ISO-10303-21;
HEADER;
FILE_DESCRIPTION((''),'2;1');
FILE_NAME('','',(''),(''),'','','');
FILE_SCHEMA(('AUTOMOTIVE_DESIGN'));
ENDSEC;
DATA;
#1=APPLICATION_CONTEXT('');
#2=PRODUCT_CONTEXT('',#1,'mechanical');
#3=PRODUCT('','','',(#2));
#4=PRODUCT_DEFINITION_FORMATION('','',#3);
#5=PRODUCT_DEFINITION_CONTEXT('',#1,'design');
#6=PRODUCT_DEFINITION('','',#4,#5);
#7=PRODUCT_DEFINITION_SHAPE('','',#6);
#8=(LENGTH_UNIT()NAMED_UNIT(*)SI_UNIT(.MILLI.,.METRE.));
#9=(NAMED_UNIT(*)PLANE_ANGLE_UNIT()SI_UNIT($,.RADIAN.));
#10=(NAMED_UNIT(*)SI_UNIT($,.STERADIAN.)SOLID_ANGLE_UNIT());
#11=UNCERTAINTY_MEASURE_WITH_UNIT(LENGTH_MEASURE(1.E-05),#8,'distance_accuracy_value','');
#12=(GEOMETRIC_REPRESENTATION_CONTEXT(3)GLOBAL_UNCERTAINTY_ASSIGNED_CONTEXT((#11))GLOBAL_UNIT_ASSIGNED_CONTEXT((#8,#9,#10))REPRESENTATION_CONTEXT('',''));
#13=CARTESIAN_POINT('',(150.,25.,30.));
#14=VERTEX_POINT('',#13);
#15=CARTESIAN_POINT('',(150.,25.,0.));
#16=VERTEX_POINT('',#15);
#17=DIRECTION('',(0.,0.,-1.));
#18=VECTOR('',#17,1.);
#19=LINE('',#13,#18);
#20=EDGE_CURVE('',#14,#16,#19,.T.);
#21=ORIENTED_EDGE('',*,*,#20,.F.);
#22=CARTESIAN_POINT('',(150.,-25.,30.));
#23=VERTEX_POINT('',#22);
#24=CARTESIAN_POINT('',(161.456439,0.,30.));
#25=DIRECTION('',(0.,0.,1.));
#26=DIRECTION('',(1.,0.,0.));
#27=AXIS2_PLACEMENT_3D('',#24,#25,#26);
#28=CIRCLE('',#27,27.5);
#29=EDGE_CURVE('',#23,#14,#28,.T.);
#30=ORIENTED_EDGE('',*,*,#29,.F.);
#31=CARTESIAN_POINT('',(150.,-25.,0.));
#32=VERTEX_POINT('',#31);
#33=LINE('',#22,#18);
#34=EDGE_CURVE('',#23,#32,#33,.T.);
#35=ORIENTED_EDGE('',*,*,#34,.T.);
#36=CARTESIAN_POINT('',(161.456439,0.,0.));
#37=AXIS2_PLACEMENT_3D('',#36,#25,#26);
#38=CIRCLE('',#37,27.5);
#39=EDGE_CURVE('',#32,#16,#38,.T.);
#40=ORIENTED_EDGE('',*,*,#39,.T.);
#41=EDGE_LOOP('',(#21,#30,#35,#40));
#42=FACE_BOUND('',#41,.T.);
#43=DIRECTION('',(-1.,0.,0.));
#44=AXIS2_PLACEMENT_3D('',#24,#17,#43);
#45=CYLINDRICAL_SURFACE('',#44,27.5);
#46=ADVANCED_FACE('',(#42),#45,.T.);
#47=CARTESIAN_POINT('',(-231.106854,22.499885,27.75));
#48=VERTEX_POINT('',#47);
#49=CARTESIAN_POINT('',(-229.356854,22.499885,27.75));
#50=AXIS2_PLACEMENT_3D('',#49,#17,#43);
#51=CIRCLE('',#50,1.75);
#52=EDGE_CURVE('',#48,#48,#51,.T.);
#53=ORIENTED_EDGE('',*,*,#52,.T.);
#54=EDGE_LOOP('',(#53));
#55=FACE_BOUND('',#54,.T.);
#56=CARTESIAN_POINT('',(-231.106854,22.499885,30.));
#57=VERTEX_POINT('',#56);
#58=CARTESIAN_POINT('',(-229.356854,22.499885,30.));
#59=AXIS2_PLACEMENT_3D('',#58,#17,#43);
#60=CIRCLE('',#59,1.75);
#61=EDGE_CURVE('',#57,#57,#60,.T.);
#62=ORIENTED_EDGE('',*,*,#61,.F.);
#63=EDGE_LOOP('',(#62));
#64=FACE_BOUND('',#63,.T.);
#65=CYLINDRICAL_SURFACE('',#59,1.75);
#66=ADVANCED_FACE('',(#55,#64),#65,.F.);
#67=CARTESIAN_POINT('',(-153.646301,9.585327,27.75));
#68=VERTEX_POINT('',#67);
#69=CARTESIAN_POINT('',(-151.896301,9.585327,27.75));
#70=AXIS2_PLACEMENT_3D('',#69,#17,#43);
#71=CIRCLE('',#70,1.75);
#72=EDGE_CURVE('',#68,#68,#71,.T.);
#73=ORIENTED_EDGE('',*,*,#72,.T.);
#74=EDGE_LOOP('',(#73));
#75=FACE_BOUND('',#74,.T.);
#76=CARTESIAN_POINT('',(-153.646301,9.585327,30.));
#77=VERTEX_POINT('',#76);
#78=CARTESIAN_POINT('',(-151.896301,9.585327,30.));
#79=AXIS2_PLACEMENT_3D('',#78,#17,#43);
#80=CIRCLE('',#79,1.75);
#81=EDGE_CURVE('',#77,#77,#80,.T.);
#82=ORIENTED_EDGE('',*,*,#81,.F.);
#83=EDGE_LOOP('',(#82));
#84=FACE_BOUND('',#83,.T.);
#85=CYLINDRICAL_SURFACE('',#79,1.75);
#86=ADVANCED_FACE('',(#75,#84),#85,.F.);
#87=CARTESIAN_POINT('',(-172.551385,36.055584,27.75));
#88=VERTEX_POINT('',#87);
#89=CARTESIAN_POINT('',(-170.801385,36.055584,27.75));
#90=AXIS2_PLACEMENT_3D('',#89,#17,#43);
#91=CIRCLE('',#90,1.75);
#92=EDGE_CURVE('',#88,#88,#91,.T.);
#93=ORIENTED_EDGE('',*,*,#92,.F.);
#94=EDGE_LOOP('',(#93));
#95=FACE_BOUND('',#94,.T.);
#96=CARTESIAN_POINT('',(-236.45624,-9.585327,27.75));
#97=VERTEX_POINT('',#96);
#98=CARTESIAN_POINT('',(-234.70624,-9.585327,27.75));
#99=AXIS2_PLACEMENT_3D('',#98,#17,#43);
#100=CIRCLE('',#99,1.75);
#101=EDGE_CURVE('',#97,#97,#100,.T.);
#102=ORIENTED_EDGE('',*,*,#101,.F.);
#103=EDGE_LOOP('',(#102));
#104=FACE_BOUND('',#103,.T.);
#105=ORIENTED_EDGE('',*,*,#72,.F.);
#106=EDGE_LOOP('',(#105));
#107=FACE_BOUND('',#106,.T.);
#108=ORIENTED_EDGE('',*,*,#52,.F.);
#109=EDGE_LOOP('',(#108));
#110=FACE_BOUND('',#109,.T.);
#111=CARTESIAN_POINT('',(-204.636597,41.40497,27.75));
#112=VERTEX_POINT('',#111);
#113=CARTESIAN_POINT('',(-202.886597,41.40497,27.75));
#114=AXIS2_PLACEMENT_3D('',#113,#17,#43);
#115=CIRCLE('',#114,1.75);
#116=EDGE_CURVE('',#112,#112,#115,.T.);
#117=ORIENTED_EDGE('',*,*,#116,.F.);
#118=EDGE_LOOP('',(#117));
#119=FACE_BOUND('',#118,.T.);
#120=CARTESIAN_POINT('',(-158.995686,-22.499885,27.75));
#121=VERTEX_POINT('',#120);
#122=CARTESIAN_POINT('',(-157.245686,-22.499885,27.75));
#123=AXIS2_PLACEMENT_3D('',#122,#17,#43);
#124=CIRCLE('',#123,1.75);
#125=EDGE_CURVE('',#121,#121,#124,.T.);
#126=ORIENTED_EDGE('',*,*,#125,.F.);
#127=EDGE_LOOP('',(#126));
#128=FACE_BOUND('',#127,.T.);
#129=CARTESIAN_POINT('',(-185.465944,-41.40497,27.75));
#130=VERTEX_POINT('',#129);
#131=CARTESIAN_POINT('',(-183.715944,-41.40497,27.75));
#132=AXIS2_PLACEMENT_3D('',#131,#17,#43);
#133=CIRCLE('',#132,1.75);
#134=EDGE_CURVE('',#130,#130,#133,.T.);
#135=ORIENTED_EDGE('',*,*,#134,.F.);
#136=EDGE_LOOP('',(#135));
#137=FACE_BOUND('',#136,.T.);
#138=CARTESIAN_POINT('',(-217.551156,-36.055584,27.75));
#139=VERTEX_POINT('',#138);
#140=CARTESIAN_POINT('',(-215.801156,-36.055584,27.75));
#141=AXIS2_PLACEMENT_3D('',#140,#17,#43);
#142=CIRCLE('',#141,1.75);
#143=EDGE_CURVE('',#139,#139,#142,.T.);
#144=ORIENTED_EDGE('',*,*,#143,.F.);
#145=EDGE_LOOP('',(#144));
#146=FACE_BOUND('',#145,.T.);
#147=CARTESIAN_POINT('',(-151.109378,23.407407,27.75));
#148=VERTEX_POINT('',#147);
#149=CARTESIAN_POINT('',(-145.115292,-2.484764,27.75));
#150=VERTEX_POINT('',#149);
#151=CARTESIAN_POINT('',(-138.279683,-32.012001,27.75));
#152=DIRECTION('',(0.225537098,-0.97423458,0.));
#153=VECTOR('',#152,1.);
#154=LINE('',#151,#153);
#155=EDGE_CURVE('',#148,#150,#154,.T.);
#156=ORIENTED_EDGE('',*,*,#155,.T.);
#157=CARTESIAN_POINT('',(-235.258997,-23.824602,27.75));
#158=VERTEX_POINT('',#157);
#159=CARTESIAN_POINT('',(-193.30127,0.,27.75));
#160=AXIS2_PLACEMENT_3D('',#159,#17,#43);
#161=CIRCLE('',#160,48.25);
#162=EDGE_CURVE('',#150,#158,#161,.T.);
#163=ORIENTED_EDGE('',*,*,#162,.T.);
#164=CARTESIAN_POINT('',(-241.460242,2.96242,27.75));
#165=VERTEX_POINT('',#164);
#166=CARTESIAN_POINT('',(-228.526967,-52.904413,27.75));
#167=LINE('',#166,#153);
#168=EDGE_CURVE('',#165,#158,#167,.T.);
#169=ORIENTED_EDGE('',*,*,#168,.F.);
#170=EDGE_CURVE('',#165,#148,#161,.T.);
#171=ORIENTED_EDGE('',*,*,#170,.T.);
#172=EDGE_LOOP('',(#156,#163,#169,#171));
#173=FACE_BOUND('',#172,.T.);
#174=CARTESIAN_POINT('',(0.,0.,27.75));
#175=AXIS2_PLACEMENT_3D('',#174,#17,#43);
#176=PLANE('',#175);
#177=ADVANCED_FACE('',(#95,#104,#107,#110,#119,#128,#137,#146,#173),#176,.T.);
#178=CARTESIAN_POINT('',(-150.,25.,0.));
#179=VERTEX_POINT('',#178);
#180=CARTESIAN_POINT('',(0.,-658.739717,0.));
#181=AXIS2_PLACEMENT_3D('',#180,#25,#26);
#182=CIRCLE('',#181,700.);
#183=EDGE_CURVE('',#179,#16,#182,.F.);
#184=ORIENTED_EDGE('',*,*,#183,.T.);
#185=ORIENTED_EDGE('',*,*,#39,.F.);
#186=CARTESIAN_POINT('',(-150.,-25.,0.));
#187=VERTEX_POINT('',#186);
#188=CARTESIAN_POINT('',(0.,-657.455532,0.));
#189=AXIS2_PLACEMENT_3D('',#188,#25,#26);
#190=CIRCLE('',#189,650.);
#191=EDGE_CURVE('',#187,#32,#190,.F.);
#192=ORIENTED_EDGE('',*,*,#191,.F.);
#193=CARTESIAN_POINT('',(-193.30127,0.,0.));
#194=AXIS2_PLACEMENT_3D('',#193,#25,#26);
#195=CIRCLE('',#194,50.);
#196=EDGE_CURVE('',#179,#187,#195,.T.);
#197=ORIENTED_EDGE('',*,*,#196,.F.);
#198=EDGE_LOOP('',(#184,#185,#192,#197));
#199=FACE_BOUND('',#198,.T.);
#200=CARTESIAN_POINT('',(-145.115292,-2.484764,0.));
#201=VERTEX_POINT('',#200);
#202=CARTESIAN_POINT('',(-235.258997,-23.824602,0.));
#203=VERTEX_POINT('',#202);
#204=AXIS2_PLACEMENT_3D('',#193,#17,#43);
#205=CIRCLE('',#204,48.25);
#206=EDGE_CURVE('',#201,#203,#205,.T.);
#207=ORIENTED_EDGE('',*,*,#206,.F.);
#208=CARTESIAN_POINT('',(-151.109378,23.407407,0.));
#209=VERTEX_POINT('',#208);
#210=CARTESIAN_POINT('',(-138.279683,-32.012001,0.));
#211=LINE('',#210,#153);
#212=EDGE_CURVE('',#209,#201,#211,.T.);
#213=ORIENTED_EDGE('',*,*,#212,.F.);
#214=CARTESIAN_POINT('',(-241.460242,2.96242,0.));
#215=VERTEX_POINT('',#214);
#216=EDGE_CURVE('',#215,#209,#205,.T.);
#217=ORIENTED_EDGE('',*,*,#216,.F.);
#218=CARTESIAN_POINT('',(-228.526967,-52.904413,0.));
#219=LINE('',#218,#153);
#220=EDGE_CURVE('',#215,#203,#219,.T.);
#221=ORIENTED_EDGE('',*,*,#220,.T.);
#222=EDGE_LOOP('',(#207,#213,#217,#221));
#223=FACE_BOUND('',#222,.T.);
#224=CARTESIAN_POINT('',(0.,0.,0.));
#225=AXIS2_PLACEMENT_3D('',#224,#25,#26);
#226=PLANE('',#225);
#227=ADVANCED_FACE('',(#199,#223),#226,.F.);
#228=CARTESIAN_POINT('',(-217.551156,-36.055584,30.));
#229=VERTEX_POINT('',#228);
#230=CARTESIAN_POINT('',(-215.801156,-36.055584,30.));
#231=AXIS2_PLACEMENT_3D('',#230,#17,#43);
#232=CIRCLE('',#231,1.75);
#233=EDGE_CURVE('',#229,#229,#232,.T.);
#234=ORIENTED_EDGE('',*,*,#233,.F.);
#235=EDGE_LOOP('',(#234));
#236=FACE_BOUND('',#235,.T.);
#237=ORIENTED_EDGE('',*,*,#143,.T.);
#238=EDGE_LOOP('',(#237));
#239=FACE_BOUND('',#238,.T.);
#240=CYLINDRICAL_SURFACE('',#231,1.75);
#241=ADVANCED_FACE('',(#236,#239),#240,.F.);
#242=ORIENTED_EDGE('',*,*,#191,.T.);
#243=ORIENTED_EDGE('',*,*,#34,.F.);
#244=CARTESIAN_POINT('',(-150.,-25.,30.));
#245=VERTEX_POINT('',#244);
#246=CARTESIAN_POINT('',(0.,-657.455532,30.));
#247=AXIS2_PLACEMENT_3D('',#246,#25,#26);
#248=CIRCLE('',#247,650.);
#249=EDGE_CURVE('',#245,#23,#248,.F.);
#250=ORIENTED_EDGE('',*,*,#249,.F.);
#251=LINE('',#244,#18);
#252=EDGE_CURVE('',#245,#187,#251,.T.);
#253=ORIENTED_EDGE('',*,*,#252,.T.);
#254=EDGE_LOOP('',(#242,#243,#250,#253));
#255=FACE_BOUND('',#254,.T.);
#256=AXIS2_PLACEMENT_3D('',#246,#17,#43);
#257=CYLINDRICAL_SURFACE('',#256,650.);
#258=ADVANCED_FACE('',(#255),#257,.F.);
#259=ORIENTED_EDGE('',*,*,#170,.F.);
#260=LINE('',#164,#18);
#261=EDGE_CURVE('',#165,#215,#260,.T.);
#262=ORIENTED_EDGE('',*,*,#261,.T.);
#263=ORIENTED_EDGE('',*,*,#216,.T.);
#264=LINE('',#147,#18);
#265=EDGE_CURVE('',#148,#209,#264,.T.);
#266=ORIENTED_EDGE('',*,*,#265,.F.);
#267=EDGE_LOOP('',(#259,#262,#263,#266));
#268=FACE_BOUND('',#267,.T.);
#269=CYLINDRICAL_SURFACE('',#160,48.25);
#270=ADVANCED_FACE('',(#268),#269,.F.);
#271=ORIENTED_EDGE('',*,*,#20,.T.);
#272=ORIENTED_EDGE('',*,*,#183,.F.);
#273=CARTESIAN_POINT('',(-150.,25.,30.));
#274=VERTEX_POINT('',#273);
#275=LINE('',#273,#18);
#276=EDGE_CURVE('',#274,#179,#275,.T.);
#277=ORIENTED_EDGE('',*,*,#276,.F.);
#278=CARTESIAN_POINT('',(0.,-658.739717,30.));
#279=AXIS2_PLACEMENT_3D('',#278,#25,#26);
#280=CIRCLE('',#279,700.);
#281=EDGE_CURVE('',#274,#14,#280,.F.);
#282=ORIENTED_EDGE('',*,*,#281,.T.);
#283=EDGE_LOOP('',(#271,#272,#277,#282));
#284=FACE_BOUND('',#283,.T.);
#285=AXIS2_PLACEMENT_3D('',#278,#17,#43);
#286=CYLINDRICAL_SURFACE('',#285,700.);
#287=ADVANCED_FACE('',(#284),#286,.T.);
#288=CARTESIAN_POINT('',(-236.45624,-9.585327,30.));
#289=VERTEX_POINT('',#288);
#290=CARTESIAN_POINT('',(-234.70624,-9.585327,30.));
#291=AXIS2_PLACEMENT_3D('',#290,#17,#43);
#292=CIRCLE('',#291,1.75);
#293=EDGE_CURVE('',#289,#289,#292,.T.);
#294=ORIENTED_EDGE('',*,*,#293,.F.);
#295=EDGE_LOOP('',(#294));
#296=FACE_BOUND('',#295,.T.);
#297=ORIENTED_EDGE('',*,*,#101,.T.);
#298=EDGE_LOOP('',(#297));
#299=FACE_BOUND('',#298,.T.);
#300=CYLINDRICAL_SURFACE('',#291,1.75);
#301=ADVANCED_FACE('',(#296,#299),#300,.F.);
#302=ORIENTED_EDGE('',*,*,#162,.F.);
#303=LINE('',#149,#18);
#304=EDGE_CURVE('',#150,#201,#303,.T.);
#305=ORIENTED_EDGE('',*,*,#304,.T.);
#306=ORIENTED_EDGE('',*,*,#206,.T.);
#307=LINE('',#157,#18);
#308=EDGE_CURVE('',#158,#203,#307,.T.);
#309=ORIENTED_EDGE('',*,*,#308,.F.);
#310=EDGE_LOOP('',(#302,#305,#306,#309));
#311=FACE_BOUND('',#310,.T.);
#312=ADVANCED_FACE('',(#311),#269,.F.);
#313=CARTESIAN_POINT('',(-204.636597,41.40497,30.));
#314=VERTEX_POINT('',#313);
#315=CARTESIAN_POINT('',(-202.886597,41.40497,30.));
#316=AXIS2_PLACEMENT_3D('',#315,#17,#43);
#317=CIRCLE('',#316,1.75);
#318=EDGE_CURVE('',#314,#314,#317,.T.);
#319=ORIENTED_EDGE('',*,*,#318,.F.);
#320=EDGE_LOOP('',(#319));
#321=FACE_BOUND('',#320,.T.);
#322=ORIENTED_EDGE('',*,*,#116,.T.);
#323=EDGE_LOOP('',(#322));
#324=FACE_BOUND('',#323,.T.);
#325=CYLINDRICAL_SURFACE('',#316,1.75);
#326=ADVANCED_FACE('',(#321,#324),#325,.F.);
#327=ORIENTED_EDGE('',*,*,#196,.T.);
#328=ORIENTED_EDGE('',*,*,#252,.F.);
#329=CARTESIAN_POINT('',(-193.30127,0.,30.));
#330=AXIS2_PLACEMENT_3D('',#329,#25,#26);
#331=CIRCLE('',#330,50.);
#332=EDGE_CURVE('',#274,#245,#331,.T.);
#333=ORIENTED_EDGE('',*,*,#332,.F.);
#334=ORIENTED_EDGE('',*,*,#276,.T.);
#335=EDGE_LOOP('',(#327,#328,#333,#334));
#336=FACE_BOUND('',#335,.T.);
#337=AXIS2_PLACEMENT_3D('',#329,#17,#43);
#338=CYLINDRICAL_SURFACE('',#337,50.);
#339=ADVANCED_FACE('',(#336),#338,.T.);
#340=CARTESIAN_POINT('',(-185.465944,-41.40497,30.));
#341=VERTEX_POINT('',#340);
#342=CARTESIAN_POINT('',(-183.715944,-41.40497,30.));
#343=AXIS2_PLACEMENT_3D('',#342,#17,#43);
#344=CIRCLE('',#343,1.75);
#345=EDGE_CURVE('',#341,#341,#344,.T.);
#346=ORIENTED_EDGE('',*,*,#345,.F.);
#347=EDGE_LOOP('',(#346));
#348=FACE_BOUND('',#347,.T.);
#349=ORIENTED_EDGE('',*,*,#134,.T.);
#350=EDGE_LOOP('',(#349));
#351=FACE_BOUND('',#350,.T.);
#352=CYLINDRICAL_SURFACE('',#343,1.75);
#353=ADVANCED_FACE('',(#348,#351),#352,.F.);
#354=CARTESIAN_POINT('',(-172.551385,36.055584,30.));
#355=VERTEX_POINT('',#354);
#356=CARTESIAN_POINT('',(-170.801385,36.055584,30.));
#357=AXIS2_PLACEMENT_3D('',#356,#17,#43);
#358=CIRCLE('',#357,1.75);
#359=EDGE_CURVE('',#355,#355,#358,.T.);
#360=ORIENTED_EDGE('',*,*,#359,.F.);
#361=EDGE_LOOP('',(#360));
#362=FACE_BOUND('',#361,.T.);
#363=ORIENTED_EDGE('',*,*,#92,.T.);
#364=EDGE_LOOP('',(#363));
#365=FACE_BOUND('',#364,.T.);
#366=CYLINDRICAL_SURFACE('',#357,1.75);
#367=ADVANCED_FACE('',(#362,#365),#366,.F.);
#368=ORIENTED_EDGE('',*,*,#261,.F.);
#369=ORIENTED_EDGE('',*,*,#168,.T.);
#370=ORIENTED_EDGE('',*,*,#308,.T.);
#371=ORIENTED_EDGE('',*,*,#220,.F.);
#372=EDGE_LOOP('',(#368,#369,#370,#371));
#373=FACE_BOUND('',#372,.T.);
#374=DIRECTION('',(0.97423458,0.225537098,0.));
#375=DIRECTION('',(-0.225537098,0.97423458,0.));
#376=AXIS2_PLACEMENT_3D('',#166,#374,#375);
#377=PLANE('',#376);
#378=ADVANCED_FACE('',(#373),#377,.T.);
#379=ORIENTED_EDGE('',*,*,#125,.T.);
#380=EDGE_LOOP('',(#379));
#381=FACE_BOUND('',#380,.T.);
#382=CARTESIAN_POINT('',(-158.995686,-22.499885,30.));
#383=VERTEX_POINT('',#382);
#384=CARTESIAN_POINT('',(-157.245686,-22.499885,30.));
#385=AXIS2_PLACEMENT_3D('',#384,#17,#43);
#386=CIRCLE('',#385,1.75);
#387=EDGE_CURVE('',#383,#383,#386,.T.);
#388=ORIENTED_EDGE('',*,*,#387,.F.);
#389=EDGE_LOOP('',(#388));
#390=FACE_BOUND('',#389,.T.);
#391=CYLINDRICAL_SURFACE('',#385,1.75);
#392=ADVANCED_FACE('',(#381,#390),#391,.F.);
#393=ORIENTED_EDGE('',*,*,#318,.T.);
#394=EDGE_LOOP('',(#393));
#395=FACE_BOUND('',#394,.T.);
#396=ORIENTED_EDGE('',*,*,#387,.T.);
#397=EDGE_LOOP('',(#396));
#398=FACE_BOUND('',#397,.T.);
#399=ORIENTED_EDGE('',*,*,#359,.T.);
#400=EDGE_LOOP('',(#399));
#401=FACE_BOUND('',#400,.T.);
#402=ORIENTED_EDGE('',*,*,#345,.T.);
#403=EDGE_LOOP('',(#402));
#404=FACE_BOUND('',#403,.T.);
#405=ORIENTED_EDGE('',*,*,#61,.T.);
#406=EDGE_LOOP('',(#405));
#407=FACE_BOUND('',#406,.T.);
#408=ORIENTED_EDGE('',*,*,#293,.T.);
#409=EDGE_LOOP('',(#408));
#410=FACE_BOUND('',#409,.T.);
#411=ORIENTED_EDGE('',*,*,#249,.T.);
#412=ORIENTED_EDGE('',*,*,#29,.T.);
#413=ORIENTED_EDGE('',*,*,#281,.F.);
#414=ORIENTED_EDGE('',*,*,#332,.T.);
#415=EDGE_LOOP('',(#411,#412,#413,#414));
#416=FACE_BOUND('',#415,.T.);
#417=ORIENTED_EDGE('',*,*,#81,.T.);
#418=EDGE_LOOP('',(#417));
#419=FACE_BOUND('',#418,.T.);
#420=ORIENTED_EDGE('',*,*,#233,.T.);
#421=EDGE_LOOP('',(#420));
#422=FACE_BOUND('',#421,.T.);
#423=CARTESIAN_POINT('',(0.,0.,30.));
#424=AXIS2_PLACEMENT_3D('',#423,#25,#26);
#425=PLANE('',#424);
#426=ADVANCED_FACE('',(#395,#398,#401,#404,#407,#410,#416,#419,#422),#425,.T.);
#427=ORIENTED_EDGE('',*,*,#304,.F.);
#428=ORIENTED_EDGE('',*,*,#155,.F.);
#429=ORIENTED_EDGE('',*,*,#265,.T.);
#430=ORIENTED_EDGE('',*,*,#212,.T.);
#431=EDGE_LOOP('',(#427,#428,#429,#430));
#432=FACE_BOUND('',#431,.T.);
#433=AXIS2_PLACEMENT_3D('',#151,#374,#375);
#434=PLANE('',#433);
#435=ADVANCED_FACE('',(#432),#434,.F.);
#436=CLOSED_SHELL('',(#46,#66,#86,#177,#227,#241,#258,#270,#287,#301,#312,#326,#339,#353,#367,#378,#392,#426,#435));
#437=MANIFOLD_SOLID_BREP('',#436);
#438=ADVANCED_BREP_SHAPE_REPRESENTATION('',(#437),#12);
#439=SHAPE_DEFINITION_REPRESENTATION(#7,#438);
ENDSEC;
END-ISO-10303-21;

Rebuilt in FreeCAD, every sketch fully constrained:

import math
import FreeCAD as App
import Part
import Sketcher
from FreeCAD import Vector
Q = App.Units.Quantity

doc = App.newDocument("Part")
body = doc.addObject("PartDesign::Body", "Body")

# Sketch on XY plane
sketch1 = doc.addObject("Sketcher::SketchObject", "Sketch")
body.addObject(sketch1)
sketch1.AttachmentSupport = (doc.XY_Plane, [""])
sketch1.MapMode = "FlatFace"
sketch1.addGeometry([
    Part.ArcOfCircle(Part.Circle(Vector(0, -657, 0), Vector(0, 0, 1), 650), math.radians(77), math.radians(103)),  # 0
    Part.ArcOfCircle(Part.Circle(Vector(161, 0, 0), Vector(0, 0, 1), 28), math.radians(-115), math.radians(0)),  # 1
    Part.ArcOfCircle(Part.Circle(Vector(161, 0, 0), Vector(0, 0, 1), 28), math.radians(0), math.radians(115)),  # 2
    Part.ArcOfCircle(Part.Circle(Vector(0, -659, 0), Vector(0, 0, 1), 700), math.radians(78), math.radians(102)),  # 3
    Part.ArcOfCircle(Part.Circle(Vector(-193, 0, 0), Vector(0, 0, 1), 50), math.radians(30), math.radians(330)),  # 4
], False)
sketch1.addConstraint([
    Sketcher.Constraint("Coincident", 0, 1, 1, 1),
    Sketcher.Constraint("Tangent", 1, 2, 2, 1),
    Sketcher.Constraint("Coincident", 2, 2, 3, 1),
    Sketcher.Constraint("Coincident", 3, 2, 4, 1),
    Sketcher.Constraint("Coincident", 4, 2, 0, 2),
    Sketcher.Constraint("Equal", 1, 2),
    Sketcher.Constraint("Symmetric", 0, 1, 3, 2, -1, 1),
    Sketcher.Constraint("Symmetric", 2, 2, 4, 2, -1, 1),
    Sketcher.Constraint("PointOnObject", 0, 3, -2),
    Sketcher.Constraint("PointOnObject", 1, 3, -1),
    Sketcher.Constraint("PointOnObject", 1, 2, -1),
    Sketcher.Constraint("Radius", 0, Q("650 mm")),
    Sketcher.Constraint("Radius", 3, Q("700 mm")),
    Sketcher.Constraint("Radius", 4, Q("50 mm")),
    Sketcher.Constraint("Radius", 1, Q("27.5 mm")),
    Sketcher.Constraint("DistanceY", 0, 1, -1, 1, Q("25 mm")),
    Sketcher.Constraint("DistanceX", -1, 1, 2, 2, Q("150 mm")),
])
pad1 = doc.addObject("PartDesign::Pad", "Pad")
body.addObject(pad1)
pad1.Profile = sketch1
pad1.Length = 30

# Sketch on XY plane
sketch2 = doc.addObject("Sketcher::SketchObject", "Sketch001")
body.addObject(sketch2)
sketch2.AttachmentSupport = (doc.XY_Plane, [""])
sketch2.MapMode = "FlatFace"
sketch2.addGeometry([
    Part.ArcOfCircle(Part.Circle(Vector(-193, 0, 0), Vector(0, 0, 1), 48), math.radians(29), math.radians(176)),
    Part.LineSegment(Vector(-151, 23, 0), Vector(-145, -2, 0)),
    Part.ArcOfCircle(Part.Circle(Vector(-193, 0, 0), Vector(0, 0, 1), 48), math.radians(-150), math.radians(-3)),
    Part.LineSegment(Vector(-235, -24, 0), Vector(-241, 3, 0)),
], False)
sketch2.addConstraint([
    Sketcher.Constraint("Coincident", 0, 1, 1, 1),
    Sketcher.Constraint("Coincident", 1, 2, 2, 2),
    Sketcher.Constraint("Coincident", 2, 1, 3, 1),
    Sketcher.Constraint("Coincident", 3, 2, 0, 2),
    Sketcher.Constraint("Coincident", 2, 3, 0, 3),
    Sketcher.Constraint("Equal", 0, 2),
    Sketcher.Constraint("PointOnObject", 0, 3, -1),
    Sketcher.Constraint("Parallel", 1, 3),
    Sketcher.Constraint("Radius", 0, Q("48.25 mm")),
    Sketcher.Constraint("DistanceY", 2, 1, -1, 1, Q("23.824602 mm")),
    Sketcher.Constraint("DistanceX", 0, 3, -1, 1, Q("193.30127 mm")),
    Sketcher.Constraint("DistanceX", 3, 2, -1, 1, Q("241.460242 mm")),
    Sketcher.Constraint("DistanceY", 1, 2, 0, 1, Q("25.89217 mm")),
])
pocket1 = doc.addObject("PartDesign::Pocket", "Pocket")
body.addObject(pocket1)
pocket1.Profile = sketch2
pocket1.Length = 27.75
pocket1.Reversed = True

# Sketch on XY plane
sketch3 = doc.addObject("Sketcher::SketchObject", "Sketch002")
body.addObject(sketch3)
sketch3.AttachmentSupport = (doc.XY_Plane, [""])
sketch3.MapMode = "FlatFace"
sketch3.AttachmentOffset = App.Placement(Vector(0, 0, 27.75), App.Rotation())
sketch3.addGeometry([
    Part.Circle(Vector(-151.9, 9.6, 0), Vector(0, 0, 1), 1.8),  # 0
    Part.Circle(Vector(-170.8, 36.1, 0), Vector(0, 0, 1), 1.8),  # 1
    Part.Circle(Vector(-202.9, 41.4, 0), Vector(0, 0, 1), 1.8),  # 2
    Part.Circle(Vector(-229.4, 22.5, 0), Vector(0, 0, 1), 1.8),  # 3
    Part.Circle(Vector(-234.7, -9.6, 0), Vector(0, 0, 1), 1.8),  # 4
    Part.Circle(Vector(-215.8, -36.1, 0), Vector(0, 0, 1), 1.8),  # 5
    Part.Circle(Vector(-183.7, -41.4, 0), Vector(0, 0, 1), 1.8),  # 6
    Part.Circle(Vector(-157.2, -22.5, 0), Vector(0, 0, 1), 1.8),  # 7
], False)
sketch3.addConstraint([
    Sketcher.Constraint("Equal", 0, 1),
    Sketcher.Constraint("Equal", 1, 2),
    Sketcher.Constraint("Equal", 2, 3),
    Sketcher.Constraint("Equal", 3, 4),
    Sketcher.Constraint("Equal", 4, 5),
    Sketcher.Constraint("Equal", 5, 6),
    Sketcher.Constraint("Equal", 6, 7),
    Sketcher.Constraint("Diameter", 0, Q("3.5 mm")),
    Sketcher.Constraint("DistanceX", 0, 3, -1, 1, Q("151.896301 mm")),
    Sketcher.Constraint("DistanceY", 3, 3, 1, 3, Q("13.555699 mm")),
    Sketcher.Constraint("DistanceX", 3, 3, 5, 3, Q("13.555699 mm")),
    Sketcher.Constraint("DistanceY", 5, 3, 7, 3, Q("13.555699 mm")),
    Sketcher.Constraint("DistanceX", 1, 3, 7, 3, Q("13.555699 mm")),
    Sketcher.Constraint("DistanceY", -1, 1, 2, 3, Q("41.40497 mm")),
    Sketcher.Constraint("DistanceX", 4, 3, -1, 1, Q("234.70624 mm")),
    Sketcher.Constraint("DistanceY", 6, 3, -1, 1, Q("41.40497 mm")),
    Sketcher.Constraint("DistanceX", 3, 3, 1, 3, Q("58.55547 mm")),
    Sketcher.Constraint("DistanceY", 0, 3, 3, 3, Q("12.914559 mm")),
    Sketcher.Constraint("DistanceY", 4, 3, 1, 3, Q("45.640911 mm")),
    Sketcher.Constraint("DistanceY", 5, 3, 3, 3, Q("58.55547 mm")),
    Sketcher.Constraint("DistanceX", 5, 3, 2, 3, Q("12.914559 mm")),
    Sketcher.Constraint("DistanceX", 6, 3, 1, 3, Q("12.914559 mm")),
    Sketcher.Constraint("DistanceY", -1, 1, 0, 3, Q("9.585327 mm")),
    Sketcher.Constraint("DistanceX", 1, 3, -1, 1, Q("170.801385 mm")),
])
pocket2 = doc.addObject("PartDesign::Pocket", "Pocket001")
body.addObject(pocket2)
pocket2.Profile = sketch3
pocket2.Type = "ThroughAll"
pocket2.Reversed = True

doc.recompute()
